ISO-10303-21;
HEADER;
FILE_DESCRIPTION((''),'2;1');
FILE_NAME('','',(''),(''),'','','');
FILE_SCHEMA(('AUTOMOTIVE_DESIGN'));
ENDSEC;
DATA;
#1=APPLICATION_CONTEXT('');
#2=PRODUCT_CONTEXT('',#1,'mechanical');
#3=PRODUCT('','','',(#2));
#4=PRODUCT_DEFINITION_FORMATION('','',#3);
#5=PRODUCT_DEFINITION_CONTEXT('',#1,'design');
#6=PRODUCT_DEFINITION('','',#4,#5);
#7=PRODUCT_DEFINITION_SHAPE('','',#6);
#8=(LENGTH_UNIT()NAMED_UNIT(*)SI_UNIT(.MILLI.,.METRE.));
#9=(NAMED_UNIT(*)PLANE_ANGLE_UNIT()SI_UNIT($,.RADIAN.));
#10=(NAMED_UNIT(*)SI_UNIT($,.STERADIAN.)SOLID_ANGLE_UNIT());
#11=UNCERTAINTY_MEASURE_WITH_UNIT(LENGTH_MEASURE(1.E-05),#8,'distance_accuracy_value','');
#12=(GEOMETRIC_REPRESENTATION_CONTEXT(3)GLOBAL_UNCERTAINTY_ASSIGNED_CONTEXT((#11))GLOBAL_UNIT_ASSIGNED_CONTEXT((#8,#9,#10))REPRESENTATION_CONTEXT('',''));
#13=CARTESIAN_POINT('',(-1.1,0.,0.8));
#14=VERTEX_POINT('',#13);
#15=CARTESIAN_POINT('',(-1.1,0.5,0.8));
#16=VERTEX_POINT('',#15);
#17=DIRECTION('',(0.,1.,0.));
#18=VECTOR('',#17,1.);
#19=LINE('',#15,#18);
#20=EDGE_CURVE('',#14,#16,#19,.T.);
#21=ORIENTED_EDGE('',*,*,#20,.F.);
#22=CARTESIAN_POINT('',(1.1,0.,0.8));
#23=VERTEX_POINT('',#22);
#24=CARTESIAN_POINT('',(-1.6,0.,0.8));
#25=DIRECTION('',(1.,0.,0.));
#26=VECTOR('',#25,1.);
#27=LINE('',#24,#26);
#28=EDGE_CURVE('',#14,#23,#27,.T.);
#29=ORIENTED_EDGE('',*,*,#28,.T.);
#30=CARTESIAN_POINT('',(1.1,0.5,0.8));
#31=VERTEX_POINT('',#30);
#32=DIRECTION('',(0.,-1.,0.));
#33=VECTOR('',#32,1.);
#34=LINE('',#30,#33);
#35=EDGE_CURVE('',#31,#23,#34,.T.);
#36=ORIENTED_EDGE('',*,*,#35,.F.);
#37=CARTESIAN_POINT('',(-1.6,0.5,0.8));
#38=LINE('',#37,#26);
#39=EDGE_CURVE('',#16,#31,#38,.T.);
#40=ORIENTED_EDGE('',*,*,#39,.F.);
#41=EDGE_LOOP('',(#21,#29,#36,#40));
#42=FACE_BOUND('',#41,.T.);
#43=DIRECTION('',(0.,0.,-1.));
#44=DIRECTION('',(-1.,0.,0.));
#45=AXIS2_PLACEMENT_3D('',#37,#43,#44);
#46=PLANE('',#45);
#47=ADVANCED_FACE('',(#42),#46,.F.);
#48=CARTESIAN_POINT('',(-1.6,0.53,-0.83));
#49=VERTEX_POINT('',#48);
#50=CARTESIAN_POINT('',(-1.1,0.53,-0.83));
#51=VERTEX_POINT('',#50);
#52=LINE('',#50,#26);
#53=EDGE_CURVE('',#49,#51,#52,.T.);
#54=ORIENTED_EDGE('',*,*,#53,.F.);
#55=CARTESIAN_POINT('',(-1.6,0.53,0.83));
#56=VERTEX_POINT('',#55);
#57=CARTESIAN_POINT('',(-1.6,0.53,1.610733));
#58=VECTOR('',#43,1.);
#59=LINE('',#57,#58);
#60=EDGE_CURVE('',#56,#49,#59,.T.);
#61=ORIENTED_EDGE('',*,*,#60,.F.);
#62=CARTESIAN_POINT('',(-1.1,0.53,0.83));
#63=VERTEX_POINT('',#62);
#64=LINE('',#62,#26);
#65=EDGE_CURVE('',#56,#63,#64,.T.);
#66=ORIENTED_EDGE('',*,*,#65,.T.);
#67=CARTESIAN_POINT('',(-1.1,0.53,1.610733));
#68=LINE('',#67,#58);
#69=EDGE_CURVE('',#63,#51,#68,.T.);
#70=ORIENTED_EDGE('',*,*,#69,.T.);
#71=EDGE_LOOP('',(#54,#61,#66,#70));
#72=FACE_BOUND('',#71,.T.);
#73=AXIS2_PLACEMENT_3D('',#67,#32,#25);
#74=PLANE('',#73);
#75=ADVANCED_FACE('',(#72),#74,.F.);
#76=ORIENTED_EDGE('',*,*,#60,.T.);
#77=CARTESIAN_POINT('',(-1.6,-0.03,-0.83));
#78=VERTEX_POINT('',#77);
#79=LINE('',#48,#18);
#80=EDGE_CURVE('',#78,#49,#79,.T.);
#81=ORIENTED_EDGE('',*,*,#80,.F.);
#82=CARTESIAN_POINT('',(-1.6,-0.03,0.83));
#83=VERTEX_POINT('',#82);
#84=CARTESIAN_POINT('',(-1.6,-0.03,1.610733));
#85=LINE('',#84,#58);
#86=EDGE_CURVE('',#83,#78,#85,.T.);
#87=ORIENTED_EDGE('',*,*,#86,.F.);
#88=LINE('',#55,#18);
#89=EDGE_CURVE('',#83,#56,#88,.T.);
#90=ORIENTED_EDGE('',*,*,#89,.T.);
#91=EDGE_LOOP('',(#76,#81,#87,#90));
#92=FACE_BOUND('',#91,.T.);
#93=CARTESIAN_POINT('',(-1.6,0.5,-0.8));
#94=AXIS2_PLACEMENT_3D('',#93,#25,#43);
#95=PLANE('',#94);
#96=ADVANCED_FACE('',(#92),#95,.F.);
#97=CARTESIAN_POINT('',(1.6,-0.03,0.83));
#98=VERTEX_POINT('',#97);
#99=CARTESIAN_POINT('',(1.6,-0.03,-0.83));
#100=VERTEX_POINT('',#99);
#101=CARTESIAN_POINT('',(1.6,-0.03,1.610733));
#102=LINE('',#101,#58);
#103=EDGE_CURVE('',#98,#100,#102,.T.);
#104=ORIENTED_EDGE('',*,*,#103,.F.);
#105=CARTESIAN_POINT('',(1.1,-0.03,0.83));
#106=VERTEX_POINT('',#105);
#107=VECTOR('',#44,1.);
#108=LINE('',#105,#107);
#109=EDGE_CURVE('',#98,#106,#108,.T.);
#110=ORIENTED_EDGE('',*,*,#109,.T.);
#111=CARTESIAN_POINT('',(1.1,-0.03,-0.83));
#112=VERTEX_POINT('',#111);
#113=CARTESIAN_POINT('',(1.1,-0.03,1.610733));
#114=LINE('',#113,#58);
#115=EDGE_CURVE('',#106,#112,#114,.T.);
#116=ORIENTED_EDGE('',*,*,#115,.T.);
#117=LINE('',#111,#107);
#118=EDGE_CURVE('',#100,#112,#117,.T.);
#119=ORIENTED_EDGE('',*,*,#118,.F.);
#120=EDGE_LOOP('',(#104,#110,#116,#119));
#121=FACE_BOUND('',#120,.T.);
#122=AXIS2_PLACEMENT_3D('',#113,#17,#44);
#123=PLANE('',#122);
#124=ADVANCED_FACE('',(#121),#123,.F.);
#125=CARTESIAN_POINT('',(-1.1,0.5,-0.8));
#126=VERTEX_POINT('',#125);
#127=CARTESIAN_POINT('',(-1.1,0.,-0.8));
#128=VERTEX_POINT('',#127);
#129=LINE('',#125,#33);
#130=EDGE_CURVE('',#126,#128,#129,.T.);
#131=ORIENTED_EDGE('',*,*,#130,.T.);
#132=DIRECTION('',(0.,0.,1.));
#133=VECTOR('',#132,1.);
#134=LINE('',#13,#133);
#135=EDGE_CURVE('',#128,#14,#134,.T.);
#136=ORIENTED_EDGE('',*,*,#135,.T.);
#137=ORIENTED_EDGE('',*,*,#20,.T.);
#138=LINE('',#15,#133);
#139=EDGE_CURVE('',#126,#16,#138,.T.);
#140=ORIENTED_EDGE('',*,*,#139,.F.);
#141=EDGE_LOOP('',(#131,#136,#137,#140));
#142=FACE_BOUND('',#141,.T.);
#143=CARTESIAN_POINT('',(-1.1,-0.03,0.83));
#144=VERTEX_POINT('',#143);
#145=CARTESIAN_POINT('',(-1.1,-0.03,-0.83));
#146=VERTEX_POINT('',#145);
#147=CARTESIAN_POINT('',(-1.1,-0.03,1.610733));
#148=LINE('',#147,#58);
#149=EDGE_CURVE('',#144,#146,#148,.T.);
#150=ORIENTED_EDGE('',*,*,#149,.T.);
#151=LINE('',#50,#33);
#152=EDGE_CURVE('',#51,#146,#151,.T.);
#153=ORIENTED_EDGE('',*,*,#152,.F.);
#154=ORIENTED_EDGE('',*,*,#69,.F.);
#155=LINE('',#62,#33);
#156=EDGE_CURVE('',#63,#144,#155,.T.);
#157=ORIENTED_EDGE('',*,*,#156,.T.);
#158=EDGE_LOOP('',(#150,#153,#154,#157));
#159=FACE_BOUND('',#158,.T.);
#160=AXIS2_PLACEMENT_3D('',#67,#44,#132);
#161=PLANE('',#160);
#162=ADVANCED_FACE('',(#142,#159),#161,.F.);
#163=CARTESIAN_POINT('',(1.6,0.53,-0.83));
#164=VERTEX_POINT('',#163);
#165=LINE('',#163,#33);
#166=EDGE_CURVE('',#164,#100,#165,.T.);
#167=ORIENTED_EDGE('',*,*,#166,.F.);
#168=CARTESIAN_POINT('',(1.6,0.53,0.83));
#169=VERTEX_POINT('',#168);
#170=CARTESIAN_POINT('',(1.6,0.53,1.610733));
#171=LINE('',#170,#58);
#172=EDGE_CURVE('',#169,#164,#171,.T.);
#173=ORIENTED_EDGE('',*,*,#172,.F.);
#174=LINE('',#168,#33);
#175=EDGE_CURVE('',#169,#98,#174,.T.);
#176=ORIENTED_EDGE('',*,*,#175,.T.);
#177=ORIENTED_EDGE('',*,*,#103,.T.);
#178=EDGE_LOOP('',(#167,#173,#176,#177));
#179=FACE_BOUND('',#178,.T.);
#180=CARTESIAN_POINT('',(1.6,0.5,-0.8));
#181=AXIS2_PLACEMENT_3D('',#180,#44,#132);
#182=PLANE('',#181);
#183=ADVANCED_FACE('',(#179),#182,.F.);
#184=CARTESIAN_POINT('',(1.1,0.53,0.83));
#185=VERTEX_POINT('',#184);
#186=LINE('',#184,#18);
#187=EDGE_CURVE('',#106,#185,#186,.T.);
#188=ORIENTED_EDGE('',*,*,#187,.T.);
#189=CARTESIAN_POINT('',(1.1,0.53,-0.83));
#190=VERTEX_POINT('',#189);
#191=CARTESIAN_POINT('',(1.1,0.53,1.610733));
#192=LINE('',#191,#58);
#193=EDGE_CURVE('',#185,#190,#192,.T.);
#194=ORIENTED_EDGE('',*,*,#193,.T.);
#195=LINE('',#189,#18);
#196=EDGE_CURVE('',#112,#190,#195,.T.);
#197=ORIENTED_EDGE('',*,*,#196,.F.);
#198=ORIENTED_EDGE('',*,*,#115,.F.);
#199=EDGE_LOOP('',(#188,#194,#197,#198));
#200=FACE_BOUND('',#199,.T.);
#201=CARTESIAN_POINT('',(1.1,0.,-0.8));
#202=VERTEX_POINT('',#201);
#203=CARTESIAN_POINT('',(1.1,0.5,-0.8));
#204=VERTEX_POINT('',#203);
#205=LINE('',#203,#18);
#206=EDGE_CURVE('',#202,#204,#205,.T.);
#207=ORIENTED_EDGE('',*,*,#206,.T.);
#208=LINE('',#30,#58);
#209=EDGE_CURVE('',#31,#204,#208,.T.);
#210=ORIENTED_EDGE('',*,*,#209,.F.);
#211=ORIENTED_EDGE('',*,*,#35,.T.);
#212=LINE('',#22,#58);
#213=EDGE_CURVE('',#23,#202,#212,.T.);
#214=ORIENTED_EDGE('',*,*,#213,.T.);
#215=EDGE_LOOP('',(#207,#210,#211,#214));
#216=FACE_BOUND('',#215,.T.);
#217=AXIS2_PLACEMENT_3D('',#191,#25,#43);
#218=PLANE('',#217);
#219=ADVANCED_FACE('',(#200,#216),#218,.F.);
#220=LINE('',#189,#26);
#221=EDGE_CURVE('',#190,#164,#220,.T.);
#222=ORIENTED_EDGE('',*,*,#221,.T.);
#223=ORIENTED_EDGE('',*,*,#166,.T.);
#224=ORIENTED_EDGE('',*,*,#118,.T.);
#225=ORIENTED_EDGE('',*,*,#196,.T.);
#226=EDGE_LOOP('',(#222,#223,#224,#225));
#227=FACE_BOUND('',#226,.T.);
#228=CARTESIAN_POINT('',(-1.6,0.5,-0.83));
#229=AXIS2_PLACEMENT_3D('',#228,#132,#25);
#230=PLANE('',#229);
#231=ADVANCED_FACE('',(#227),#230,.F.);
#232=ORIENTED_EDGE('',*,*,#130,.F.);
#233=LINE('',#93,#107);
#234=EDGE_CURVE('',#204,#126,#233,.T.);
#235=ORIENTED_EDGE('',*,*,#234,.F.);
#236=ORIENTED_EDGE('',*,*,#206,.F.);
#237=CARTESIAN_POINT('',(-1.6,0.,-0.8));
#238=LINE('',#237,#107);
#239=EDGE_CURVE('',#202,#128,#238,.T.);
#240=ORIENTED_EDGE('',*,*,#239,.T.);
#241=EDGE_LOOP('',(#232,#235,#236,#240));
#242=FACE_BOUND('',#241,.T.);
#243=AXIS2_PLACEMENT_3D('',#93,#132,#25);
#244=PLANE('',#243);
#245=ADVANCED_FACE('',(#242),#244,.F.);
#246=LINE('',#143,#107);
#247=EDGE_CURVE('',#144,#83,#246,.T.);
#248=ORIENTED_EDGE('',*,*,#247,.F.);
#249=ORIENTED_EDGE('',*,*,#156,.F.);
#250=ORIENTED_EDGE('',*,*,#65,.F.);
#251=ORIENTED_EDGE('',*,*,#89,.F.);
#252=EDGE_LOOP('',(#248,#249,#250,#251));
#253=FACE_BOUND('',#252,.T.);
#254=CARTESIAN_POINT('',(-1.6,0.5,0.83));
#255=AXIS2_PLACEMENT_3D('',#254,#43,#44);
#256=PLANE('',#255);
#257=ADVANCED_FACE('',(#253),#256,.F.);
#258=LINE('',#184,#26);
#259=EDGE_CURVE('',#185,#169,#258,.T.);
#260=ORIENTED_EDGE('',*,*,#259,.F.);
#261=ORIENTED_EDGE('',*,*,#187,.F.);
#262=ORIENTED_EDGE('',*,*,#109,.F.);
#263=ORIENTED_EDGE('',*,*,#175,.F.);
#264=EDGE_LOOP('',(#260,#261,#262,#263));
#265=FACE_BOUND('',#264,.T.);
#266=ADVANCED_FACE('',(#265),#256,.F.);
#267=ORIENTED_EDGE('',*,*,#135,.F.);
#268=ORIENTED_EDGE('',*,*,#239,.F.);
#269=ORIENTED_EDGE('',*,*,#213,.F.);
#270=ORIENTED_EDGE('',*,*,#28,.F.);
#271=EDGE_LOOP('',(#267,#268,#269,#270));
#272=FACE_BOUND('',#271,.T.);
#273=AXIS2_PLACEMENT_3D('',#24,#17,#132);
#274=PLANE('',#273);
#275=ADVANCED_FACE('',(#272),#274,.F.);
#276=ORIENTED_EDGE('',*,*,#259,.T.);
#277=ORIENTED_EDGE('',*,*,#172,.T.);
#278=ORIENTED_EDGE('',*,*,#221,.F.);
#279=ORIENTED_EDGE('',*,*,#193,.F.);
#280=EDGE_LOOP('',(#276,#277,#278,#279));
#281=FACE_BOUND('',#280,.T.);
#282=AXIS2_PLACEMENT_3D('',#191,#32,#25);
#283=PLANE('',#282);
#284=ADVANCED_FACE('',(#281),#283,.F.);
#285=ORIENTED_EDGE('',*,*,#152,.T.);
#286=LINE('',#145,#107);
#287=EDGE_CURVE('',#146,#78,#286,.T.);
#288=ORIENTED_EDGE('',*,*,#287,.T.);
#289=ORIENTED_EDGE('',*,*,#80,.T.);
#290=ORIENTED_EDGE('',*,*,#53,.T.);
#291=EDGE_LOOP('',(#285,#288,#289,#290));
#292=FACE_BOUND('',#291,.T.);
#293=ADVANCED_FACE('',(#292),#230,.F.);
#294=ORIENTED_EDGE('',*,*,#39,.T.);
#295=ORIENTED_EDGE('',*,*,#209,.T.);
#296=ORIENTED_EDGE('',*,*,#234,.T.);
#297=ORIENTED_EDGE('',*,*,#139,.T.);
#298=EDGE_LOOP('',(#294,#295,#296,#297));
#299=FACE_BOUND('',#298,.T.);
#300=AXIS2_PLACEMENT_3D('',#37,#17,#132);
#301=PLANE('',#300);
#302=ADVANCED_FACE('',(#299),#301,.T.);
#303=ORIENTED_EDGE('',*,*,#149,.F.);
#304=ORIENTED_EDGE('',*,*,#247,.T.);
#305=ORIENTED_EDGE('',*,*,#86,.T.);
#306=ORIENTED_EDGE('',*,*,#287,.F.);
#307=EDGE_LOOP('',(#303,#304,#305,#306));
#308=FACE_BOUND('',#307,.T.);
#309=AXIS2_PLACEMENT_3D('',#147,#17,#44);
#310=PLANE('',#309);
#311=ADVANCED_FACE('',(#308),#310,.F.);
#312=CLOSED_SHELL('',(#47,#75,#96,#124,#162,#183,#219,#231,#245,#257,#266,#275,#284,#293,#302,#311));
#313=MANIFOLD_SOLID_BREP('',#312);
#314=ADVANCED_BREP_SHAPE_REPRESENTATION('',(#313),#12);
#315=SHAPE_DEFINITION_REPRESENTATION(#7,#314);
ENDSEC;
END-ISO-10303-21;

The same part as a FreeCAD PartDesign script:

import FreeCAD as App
import Part
import Sketcher

V = App.Vector
Q = App.Units.Quantity

doc = App.newDocument("Part")
body = doc.addObject("PartDesign::Body", "Body")

sketch1 = body.newObject("Sketcher::SketchObject", "Sketch")
sketch1.AttachmentSupport = (doc.getObject("XZ_Plane"), [""])
sketch1.MapMode = "FlatFace"
sketch1.addGeometry([
    Part.LineSegment(V(-1.6, -0.8, 0), V(-1.6, 0.8, 0)),
    Part.LineSegment(V(-1.6, 0.8, 0), V(1.6, 0.8, 0)),
    Part.LineSegment(V(1.6, 0.8, 0), V(1.6, -0.8, 0)),
    Part.LineSegment(V(1.6, -0.8, 0), V(-1.6, -0.8, 0)),
], False)
sketch1.addConstraint([
    Sketcher.Constraint("Coincident", 0, 2, 1, 1),
    Sketcher.Constraint("Coincident", 1, 2, 2, 1),
    Sketcher.Constraint("Coincident", 2, 2, 3, 1),
    Sketcher.Constraint("Coincident", 3, 2, 0, 1),
    Sketcher.Constraint("Vertical", 0),
    Sketcher.Constraint("Horizontal", 1),
    Sketcher.Constraint("Vertical", 2),
    Sketcher.Constraint("Horizontal", 3),
    Sketcher.Constraint("Symmetric", 0, 2, 2, 2, -1, 1),
    Sketcher.Constraint("DistanceX", 1, 1, 1, 2, Q("3.2 mm")),
    Sketcher.Constraint("DistanceY", 0, 1, 0, 2, Q("1.6 mm")),
])
pad1 = body.newObject("PartDesign::Pad", "Pad")
pad1.Profile = sketch1
pad1.Length = 0.5
pad1.Reversed = True

sketch2 = body.newObject("Sketcher::SketchObject", "Sketch001")
sketch2.AttachmentSupport = (doc.getObject("XY_Plane"), [""])
sketch2.MapMode = "FlatFace"
sketch2.addGeometry([
    Part.LineSegment(V(-1.6, 0.5, 0), V(-1.6, 0, 0)),
    Part.LineSegment(V(-1.6, 0, 0), V(-1.1, 0, 0)),
    Part.LineSegment(V(-1.1, 0, 0), V(-1.1, 0.5, 0)),
    Part.LineSegment(V(-1.1, 0.5, 0), V(-1.6, 0.5, 0)),
    Part.LineSegment(V(1.1, 0.5, 0), V(1.1, 0, 0)),
    Part.LineSegment(V(1.1, 0, 0), V(1.6, 0, 0)),
    Part.LineSegment(V(1.6, 0, 0), V(1.6, 0.5, 0)),
    Part.LineSegment(V(1.6, 0.5, 0), V(1.1, 0.5, 0)),
], False)
sketch2.addConstraint([
    Sketcher.Constraint("Coincident", 0, 2, 1, 1),
    Sketcher.Constraint("Coincident", 1, 2, 2, 1),
    Sketcher.Constraint("Coincident", 2, 2, 3, 1),
    Sketcher.Constraint("Coincident", 3, 2, 0, 1),
    Sketcher.Constraint("Coincident", 4, 2, 5, 1),
    Sketcher.Constraint("Coincident", 5, 2, 6, 1),
    Sketcher.Constraint("Coincident", 6, 2, 7, 1),
    Sketcher.Constraint("Coincident", 7, 2, 4, 1),
    Sketcher.Constraint("Vertical", 0),
    Sketcher.Constraint("Horizontal", 1),
    Sketcher.Constraint("Vertical", 2),
    Sketcher.Constraint("Horizontal", 3),
    Sketcher.Constraint("Vertical", 4),
    Sketcher.Constraint("Horizontal", 5),
    Sketcher.Constraint("Vertical", 6),
    Sketcher.Constraint("Horizontal", 7),
    Sketcher.Constraint("Symmetric", 1, 2, 4, 2, -2),
    Sketcher.Constraint("Symmetric", 3, 2, 6, 2, -2),
    Sketcher.Constraint("DistanceX", 1, 1, 1, 2, Q("0.5 mm")),
    Sketcher.Constraint("DistanceY", 0, 2, 0, 1, Q("0.56 mm")),
    Sketcher.Constraint("DistanceX", 0, 2, -1, 1, Q("1.6 mm")),
    Sketcher.Constraint("DistanceY", 0, 2, -1, 1, Q("0.03 mm")),
])
pad2 = body.newObject("PartDesign::Pad", "Pad001")
pad2.Profile = sketch2
pad2.Type = "TwoLengths"
pad2.Length = 0.83
pad2.Length2 = 0.83

doc.recompute()
